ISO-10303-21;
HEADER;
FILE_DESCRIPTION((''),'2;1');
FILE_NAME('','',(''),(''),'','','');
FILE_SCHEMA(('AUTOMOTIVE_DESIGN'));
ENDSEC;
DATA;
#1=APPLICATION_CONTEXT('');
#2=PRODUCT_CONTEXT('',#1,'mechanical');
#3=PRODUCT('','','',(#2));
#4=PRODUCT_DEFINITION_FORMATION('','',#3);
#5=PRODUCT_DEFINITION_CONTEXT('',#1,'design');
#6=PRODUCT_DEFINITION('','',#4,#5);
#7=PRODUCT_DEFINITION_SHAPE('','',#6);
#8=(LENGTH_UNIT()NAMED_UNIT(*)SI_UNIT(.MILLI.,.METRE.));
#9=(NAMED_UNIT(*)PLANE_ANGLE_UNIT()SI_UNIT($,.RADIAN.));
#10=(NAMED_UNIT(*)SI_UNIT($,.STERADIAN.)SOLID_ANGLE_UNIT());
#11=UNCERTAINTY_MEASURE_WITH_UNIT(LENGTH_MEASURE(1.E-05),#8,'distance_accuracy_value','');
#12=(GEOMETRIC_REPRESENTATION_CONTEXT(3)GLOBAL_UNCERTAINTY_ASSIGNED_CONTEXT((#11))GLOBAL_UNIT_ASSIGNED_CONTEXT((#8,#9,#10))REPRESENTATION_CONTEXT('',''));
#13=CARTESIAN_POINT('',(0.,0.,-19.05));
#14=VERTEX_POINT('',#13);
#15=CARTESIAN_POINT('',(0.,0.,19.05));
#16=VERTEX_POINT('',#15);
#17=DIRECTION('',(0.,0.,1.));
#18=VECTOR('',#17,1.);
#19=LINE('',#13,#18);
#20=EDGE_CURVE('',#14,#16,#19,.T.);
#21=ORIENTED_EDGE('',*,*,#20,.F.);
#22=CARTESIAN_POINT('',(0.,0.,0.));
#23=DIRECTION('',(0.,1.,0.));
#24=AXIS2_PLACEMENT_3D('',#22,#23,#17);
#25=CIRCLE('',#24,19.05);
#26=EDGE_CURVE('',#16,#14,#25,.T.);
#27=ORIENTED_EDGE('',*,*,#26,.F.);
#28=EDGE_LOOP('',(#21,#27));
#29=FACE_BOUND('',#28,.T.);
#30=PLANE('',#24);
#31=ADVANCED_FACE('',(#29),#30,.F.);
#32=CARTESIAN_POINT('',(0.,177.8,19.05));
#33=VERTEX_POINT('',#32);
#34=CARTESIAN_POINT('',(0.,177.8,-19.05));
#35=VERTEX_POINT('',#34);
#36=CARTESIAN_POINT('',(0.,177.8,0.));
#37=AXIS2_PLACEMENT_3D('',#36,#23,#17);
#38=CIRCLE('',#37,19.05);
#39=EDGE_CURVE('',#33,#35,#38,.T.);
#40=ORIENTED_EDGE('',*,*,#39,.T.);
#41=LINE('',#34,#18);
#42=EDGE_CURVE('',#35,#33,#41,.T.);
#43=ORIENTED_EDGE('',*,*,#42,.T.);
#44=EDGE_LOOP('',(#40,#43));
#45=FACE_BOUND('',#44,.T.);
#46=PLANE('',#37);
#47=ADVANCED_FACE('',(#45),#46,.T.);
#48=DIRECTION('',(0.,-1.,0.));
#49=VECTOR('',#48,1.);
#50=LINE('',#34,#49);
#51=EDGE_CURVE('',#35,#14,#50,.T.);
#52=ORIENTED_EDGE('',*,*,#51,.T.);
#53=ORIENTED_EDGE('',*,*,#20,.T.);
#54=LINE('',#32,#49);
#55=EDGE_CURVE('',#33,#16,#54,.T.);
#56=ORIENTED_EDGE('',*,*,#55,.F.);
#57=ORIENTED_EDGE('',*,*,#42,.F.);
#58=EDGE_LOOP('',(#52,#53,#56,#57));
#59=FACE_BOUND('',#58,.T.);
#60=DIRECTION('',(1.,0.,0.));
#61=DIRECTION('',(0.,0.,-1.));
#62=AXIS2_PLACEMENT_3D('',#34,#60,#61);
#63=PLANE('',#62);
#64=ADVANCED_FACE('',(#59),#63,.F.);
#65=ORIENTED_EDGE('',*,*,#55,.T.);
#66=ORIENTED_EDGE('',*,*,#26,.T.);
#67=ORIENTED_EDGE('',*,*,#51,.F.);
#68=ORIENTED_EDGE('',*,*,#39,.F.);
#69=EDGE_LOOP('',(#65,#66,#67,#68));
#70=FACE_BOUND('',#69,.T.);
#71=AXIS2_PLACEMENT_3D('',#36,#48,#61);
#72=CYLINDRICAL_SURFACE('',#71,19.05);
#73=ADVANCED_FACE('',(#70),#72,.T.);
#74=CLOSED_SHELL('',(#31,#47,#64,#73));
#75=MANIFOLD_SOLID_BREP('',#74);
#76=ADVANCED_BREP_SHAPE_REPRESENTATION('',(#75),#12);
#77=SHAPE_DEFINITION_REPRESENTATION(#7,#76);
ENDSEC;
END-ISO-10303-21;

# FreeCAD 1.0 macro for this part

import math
import FreeCAD as App
import Part
import Sketcher
Q = App.Units.Quantity

doc = App.newDocument("Part")
body = doc.addObject("PartDesign::Body", "Body")

sketch1 = body.newObject("Sketcher::SketchObject", "Sketch")
sketch1.AttachmentSupport = (doc.getObject("XZ_Plane"), [""])
sketch1.MapMode = "FlatFace"
sketch1.addGeometry([
    Part.LineSegment(App.Vector(0, -19.05, 0), App.Vector(0, 19.05, 0)),
    Part.ArcOfCircle(Part.Circle(App.Vector(0, 0, 0), App.Vector(0, 0, 1), 19.05), math.radians(-90), math.radians(90)),
], False)
sketch1.addConstraint([
    Sketcher.Constraint("Coincident", 0, 1, 1, 1),
    Sketcher.Constraint("Coincident", 1, 2, 0, 2),
    Sketcher.Constraint("Vertical", 0),
    Sketcher.Constraint("Coincident", 1, 3, -1, 1),
    Sketcher.Constraint("PointOnObject", 0, 1, -2),
    Sketcher.Constraint("Radius", 1, Q("0.75 in")),
])
pad1 = body.newObject("PartDesign::Pad", "Pad")
pad1.Profile = sketch1
pad1.Length = Q("7 in")
pad1.Reversed = True

doc.recompute()
